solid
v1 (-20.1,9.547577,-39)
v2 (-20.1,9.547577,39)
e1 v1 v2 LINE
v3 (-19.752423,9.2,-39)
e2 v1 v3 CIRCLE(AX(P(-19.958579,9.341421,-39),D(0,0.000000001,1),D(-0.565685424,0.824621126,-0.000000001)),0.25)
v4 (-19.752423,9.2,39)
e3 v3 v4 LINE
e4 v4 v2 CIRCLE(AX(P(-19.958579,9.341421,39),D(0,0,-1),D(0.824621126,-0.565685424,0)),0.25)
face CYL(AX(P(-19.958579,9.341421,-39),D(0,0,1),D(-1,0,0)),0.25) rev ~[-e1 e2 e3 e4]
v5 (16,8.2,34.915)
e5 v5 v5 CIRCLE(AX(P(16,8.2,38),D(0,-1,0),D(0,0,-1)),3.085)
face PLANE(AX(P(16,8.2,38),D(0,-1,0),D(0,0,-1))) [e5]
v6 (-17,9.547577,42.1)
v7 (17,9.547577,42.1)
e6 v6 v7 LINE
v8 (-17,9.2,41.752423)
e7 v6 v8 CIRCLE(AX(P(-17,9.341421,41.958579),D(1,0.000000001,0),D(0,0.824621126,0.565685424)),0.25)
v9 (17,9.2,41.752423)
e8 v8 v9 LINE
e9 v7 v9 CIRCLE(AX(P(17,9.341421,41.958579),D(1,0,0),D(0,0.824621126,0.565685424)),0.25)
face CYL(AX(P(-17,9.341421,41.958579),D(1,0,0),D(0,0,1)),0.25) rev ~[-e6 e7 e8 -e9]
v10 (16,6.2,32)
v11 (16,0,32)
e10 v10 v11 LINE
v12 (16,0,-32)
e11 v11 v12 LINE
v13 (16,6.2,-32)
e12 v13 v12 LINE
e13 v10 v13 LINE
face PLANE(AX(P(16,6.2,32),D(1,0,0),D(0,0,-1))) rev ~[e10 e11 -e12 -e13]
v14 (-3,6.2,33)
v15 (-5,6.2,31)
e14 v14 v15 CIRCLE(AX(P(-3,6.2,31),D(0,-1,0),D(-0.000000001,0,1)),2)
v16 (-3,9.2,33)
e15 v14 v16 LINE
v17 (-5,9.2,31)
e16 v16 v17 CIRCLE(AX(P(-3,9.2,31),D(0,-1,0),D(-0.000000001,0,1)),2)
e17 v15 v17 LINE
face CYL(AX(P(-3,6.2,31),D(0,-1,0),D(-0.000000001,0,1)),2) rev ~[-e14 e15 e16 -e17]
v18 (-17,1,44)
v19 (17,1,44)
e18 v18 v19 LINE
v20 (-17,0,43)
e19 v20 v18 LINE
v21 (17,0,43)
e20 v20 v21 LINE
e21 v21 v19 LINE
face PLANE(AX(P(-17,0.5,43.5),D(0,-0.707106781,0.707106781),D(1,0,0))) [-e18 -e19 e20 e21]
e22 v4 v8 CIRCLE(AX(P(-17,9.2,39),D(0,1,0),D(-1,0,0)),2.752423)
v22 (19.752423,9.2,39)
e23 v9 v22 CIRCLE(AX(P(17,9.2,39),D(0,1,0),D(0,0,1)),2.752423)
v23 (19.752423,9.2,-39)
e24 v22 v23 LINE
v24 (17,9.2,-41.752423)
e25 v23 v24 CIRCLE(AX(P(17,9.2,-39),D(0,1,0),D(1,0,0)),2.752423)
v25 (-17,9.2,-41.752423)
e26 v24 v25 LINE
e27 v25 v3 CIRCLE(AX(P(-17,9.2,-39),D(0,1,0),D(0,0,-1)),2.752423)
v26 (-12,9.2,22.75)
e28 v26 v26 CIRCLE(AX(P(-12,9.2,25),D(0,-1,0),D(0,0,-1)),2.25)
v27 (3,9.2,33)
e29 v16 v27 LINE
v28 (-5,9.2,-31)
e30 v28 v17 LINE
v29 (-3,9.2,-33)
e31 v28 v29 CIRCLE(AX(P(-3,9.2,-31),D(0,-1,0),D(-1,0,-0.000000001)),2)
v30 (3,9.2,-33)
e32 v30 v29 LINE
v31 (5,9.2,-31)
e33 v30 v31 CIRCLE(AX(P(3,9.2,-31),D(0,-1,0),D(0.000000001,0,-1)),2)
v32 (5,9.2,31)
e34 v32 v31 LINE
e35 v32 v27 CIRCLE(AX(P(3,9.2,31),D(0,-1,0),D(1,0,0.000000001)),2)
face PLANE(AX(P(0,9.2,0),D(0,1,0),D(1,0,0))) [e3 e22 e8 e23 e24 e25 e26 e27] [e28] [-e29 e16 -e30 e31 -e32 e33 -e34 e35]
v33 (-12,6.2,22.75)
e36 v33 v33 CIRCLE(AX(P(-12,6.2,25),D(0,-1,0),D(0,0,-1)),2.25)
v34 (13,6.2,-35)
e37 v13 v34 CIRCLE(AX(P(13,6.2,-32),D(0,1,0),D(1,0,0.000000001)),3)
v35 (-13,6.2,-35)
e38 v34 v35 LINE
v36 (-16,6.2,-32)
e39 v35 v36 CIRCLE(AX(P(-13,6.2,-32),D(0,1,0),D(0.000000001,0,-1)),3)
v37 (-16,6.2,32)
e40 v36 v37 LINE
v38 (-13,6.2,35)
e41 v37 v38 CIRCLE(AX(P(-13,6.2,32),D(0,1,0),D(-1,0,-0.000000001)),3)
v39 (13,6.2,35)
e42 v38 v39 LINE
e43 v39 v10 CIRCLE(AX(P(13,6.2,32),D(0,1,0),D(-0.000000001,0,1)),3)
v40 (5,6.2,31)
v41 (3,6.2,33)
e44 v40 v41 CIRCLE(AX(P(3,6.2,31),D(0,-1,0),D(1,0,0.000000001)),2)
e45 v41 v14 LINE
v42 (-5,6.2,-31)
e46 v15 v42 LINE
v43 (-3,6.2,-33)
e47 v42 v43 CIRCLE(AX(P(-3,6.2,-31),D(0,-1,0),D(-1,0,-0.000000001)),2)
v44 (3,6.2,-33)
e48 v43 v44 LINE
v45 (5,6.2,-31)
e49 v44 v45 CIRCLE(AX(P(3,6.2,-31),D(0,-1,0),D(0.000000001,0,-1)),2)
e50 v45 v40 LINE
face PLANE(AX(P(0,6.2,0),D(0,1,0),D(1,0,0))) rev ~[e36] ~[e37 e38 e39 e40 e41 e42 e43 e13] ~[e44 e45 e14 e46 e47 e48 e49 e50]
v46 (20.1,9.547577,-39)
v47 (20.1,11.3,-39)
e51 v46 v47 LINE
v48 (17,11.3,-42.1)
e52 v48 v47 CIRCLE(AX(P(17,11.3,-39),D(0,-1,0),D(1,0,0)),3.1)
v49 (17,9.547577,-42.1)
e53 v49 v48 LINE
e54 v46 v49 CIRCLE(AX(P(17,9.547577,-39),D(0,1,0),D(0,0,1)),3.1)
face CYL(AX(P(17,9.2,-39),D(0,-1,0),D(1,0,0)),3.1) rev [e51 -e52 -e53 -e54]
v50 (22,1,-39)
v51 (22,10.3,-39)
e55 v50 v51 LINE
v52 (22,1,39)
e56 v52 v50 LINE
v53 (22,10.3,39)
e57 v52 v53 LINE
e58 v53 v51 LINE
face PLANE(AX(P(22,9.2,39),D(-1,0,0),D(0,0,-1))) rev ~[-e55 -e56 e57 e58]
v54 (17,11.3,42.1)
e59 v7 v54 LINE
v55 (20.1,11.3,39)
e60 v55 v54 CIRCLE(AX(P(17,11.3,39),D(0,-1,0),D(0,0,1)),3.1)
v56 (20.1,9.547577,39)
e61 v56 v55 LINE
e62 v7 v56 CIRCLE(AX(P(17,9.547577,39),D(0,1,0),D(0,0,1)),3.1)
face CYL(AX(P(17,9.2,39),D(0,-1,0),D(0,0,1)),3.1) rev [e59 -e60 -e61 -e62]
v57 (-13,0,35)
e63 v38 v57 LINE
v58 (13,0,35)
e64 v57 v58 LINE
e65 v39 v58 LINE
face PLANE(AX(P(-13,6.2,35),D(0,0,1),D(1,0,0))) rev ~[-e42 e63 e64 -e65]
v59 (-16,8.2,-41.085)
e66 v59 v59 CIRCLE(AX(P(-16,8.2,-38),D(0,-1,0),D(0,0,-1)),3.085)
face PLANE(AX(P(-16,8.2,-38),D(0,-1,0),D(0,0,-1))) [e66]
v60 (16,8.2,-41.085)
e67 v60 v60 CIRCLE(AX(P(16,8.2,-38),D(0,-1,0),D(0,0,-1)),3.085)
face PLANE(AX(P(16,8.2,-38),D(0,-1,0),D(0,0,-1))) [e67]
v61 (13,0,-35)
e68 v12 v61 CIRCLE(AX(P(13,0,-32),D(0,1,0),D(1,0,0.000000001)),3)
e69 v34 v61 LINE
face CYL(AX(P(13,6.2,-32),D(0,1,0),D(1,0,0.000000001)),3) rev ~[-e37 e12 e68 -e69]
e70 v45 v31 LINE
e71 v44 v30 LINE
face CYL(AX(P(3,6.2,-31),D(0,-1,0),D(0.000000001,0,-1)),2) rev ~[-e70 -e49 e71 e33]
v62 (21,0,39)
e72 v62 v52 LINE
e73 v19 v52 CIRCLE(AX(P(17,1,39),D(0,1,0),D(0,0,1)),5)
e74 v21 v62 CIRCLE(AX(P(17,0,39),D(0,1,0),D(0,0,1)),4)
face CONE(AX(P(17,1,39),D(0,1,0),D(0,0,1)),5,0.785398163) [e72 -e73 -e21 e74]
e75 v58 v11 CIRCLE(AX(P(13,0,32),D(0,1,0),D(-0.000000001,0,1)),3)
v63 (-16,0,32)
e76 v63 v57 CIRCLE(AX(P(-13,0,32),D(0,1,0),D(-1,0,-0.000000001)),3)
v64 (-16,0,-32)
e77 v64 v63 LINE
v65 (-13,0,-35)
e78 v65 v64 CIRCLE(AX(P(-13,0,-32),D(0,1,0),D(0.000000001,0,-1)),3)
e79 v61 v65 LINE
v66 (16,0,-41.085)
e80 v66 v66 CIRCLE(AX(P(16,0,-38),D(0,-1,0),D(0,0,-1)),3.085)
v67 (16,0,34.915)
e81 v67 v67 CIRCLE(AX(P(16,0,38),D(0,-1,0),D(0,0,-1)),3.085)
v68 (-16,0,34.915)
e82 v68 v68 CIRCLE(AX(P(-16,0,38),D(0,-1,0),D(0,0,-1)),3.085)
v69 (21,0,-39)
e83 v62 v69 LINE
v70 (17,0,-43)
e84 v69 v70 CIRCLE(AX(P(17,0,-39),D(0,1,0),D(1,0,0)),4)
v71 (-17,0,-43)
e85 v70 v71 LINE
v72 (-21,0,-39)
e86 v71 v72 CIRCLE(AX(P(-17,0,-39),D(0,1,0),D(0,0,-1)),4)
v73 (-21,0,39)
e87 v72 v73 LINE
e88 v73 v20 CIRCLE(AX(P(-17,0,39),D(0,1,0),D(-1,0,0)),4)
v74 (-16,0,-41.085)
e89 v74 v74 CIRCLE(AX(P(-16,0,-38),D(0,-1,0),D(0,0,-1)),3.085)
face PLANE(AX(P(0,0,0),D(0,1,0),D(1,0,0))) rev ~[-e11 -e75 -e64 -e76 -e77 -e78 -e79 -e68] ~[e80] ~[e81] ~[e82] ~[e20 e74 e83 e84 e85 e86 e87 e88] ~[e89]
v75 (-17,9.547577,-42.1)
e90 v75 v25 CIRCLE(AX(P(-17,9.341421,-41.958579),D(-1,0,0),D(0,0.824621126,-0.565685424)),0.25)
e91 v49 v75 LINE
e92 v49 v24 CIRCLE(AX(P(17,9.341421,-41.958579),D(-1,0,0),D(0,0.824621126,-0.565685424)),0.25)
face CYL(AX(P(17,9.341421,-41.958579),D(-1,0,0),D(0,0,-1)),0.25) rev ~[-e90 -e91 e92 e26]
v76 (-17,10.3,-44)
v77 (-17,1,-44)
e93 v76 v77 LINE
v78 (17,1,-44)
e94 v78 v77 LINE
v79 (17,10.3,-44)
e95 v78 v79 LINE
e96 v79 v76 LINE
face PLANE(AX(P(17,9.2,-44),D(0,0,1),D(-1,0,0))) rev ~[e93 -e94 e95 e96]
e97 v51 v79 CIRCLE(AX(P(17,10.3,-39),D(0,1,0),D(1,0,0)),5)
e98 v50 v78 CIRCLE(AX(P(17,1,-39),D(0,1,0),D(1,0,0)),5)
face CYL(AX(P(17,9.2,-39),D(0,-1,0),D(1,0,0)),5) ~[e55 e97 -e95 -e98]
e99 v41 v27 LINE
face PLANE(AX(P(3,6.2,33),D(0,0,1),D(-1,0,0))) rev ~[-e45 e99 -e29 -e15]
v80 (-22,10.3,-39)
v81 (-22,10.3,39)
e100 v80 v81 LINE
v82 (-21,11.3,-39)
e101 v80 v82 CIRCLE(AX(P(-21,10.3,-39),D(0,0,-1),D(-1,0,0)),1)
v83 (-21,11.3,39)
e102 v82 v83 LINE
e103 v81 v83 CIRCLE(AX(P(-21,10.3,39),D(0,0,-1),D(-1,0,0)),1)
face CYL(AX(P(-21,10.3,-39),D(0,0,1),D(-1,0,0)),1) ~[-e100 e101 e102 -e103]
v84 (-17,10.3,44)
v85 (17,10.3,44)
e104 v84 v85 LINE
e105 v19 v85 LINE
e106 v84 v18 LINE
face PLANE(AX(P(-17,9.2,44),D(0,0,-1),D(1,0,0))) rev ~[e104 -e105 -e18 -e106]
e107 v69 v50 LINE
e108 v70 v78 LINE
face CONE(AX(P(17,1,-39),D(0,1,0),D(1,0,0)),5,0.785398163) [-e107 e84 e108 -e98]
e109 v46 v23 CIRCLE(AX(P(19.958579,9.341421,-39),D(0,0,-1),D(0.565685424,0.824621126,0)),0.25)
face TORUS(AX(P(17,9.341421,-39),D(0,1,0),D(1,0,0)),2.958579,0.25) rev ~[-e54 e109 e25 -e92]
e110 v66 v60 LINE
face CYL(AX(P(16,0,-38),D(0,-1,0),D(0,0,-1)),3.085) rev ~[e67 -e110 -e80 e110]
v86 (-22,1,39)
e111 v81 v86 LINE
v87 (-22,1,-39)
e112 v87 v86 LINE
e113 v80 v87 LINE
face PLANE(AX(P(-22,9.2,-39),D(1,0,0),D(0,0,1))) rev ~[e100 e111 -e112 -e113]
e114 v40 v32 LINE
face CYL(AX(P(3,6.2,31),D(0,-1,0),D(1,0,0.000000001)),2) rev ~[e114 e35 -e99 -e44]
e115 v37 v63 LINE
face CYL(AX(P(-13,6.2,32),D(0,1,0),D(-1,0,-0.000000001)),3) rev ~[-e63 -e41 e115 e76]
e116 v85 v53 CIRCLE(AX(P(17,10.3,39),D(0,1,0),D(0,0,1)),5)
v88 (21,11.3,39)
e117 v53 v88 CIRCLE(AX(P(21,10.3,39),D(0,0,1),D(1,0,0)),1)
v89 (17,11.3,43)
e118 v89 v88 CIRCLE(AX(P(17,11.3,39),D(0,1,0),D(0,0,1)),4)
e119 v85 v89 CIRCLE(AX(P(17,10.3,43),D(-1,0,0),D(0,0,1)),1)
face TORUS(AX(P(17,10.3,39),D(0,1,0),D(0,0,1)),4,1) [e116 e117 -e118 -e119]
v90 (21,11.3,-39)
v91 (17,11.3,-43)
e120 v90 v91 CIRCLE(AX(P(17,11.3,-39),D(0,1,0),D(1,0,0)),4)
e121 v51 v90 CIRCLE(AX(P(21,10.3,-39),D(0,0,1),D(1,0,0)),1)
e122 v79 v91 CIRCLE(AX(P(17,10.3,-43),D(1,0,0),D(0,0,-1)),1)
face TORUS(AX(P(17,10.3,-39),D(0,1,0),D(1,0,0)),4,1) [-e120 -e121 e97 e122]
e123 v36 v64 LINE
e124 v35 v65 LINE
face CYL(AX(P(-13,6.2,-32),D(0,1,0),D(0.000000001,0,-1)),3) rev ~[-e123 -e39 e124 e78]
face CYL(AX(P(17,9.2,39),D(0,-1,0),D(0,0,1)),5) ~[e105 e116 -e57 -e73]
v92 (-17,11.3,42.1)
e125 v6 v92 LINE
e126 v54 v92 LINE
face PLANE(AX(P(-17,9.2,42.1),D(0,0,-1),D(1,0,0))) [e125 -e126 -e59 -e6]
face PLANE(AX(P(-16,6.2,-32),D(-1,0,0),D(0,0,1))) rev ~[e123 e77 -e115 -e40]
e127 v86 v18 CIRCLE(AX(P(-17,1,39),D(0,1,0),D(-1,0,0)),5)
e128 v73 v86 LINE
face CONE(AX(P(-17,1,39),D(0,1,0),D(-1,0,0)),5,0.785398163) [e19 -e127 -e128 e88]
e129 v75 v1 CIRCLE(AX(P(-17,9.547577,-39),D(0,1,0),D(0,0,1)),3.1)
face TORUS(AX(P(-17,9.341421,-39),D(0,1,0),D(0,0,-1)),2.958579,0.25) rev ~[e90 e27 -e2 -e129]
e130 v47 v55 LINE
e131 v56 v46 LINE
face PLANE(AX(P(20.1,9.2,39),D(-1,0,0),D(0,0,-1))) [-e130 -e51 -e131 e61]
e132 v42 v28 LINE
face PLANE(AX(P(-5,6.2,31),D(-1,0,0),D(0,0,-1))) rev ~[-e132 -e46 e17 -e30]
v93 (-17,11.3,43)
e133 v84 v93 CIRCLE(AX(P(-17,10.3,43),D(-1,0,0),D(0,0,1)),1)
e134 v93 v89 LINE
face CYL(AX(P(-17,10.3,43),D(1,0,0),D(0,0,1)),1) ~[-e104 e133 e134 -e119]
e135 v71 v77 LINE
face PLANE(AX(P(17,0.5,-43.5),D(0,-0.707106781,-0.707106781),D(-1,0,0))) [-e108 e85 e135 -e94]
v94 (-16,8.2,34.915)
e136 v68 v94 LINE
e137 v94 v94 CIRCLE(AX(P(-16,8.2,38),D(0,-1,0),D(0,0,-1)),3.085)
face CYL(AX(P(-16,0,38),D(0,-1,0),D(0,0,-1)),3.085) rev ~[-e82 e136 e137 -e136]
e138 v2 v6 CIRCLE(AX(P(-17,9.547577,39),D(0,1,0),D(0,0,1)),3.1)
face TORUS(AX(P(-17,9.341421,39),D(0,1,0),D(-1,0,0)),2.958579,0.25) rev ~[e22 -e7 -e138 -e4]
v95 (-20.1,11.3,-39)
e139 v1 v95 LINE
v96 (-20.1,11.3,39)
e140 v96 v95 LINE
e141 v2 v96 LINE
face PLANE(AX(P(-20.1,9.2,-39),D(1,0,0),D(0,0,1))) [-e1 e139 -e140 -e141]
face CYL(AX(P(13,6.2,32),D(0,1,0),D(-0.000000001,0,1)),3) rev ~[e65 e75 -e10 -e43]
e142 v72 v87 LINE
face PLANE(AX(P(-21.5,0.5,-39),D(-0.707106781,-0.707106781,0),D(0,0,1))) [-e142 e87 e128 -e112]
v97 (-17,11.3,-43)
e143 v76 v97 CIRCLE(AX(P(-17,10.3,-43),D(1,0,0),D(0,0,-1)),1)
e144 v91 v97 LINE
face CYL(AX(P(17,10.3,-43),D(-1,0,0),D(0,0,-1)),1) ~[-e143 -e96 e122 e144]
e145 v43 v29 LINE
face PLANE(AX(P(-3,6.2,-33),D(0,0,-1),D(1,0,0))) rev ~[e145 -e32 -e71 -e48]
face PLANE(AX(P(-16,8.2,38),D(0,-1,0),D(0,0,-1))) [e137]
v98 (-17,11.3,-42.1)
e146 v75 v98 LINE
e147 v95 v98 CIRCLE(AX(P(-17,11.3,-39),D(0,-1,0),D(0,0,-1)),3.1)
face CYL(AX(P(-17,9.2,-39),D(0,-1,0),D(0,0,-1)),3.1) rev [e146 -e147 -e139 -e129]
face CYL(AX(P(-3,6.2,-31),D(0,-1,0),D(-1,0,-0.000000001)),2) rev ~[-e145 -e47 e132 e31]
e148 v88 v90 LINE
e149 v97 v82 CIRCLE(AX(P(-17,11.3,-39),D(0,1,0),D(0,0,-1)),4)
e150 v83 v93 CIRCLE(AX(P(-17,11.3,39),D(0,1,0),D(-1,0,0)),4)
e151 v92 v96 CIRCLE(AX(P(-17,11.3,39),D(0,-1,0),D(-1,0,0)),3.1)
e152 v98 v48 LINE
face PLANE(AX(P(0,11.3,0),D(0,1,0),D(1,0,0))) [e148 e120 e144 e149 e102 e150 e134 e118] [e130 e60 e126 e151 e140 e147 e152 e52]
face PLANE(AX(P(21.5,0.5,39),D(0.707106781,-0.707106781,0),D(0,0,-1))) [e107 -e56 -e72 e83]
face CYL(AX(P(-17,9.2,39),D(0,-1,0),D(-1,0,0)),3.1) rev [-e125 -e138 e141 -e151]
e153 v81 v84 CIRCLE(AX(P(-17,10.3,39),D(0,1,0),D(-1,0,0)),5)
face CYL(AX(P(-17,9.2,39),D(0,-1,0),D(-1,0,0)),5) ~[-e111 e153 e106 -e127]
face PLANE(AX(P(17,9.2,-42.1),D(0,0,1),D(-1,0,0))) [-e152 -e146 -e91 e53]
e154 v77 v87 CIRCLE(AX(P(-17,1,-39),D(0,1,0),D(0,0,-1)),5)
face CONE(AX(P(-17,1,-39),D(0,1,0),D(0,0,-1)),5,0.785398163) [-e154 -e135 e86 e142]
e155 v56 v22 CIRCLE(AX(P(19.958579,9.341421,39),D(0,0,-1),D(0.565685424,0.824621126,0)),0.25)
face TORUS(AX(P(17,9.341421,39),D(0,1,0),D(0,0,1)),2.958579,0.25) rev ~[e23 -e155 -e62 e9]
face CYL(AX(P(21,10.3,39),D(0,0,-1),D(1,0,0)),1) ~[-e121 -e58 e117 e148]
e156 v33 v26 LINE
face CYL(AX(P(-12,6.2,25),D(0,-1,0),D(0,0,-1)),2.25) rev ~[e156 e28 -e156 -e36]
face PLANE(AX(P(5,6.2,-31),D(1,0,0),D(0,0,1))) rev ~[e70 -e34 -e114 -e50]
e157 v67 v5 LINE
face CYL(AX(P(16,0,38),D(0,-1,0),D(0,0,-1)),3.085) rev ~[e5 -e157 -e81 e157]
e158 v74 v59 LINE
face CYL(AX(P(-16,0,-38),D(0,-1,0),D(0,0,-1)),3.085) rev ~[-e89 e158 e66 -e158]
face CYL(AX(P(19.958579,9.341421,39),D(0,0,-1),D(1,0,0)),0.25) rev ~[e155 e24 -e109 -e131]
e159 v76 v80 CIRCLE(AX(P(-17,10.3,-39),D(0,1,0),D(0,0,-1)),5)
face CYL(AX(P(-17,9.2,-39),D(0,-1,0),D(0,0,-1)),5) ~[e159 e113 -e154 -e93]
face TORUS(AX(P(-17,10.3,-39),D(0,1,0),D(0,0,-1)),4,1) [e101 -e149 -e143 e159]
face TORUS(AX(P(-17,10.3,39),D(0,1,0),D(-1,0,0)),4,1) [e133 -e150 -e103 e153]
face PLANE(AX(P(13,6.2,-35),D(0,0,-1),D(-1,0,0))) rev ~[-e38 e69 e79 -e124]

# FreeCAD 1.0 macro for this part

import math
import FreeCAD as App
import Part
import Sketcher
from FreeCAD import Vector


def edges_at(feature, points):
    """Names of the edges that pass closest to the given points."""
    edges = feature.Shape.Edges
    near = lambda p: min(range(len(edges)), key=lambda i: edges[i].distToShape(Part.Vertex(*p))[0])
    return sorted({f"Edge{near(p) + 1}" for p in points})

doc = App.newDocument("Part")
body = doc.addObject("PartDesign::Body", "Body")

# Sketch on XZ plane
sketch1 = body.newObject("Sketcher::SketchObject", "Sketch")
sketch1.AttachmentSupport = (doc.getObject("XZ_Plane"), [""])
sketch1.MapMode = "FlatFace"
sketch1.addGeometry(Part.LineSegment(Vector(-17, 44, 0), Vector(17, 44, 0)), False)
sketch1.addGeometry(Part.ArcOfCircle(Part.Circle(Vector(17, 39, 0), Vector(0, 0, 1), 5), math.radians(0), math.radians(90)), False)
sketch1.addGeometry(Part.LineSegment(Vector(22, 39, 0), Vector(22, -39, 0)), False)
sketch1.addGeometry(Part.ArcOfCircle(Part.Circle(Vector(17, -39, 0), Vector(0, 0, 1), 5), math.radians(-90), math.radians(0)), False)
sketch1.addGeometry(Part.LineSegment(Vector(17, -44, 0), Vector(-17, -44, 0)), False)
sketch1.addGeometry(Part.ArcOfCircle(Part.Circle(Vector(-17, -39, 0), Vector(0, 0, 1), 5), math.radians(180), math.radians(270)), False)
sketch1.addGeometry(Part.LineSegment(Vector(-22, -39, 0), Vector(-22, 39, 0)), False)
sketch1.addGeometry(Part.ArcOfCircle(Part.Circle(Vector(-17, 39, 0), Vector(0, 0, 1), 5), math.radians(90), math.radians(180)), False)
sketch1.addConstraint(Sketcher.Constraint("Tangent", 0, 2, 1, 2))
sketch1.addConstraint(Sketcher.Constraint("Tangent", 1, 1, 2, 1))
sketch1.addConstraint(Sketcher.Constraint("Tangent", 2, 2, 3, 2))
sketch1.addConstraint(Sketcher.Constraint("Tangent", 3, 1, 4, 1))
sketch1.addConstraint(Sketcher.Constraint("Tangent", 4, 2, 5, 2))
sketch1.addConstraint(Sketcher.Constraint("Tangent", 5, 1, 6, 1))
sketch1.addConstraint(Sketcher.Constraint("Tangent", 6, 2, 7, 2))
sketch1.addConstraint(Sketcher.Constraint("Tangent", 7, 1, 0, 1))
sketch1.addConstraint(Sketcher.Constraint("Horizontal", 0))
sketch1.addConstraint(Sketcher.Constraint("Vertical", 2))
sketch1.addConstraint(Sketcher.Constraint("Horizontal", 4))
sketch1.addConstraint(Sketcher.Constraint("Vertical", 6))
sketch1.addConstraint(Sketcher.Constraint("Equal", 1, 3))
sketch1.addConstraint(Sketcher.Constraint("Equal", 3, 5))
sketch1.addConstraint(Sketcher.Constraint("Equal", 5, 7))
sketch1.addConstraint(Sketcher.Constraint("Symmetric", 1, 3, 5, 3, -1, 1))
sketch1.addConstraint(Sketcher.Constraint("Radius", 1, 5.0))
sketch1.addConstraint(Sketcher.Constraint("DistanceX", 0, 1, 0, 2, 34.0))
sketch1.addConstraint(Sketcher.Constraint("DistanceY", 2, 2, 2, 1, 78.0))
pad1 = body.newObject("PartDesign::Pad", "Pad")
pad1.Profile = sketch1
pad1.Length = 9.2
pad1.Reversed = True

# Sketch on XZ plane
sketch2 = body.newObject("Sketcher::SketchObject", "Sketch001")
sketch2.AttachmentSupport = (doc.getObject("XZ_Plane"), [""])
sketch2.MapMode = "FlatFace"
sketch2.AttachmentOffset = App.Placement(Vector(0, 0, -6.2), App.Rotation())
sketch2.addGeometry(Part.LineSegment(Vector(16, -32, 0), Vector(16, 32, 0)), False)
sketch2.addGeometry(Part.ArcOfCircle(Part.Circle(Vector(13, 32, 0), Vector(0, 0, 1), 3), math.radians(0), math.radians(90)), False)
sketch2.addGeometry(Part.LineSegment(Vector(13, 35, 0), Vector(-13, 35, 0)), False)
sketch2.addGeometry(Part.ArcOfCircle(Part.Circle(Vector(-13, 32, 0), Vector(0, 0, 1), 3), math.radians(90), math.radians(180)), False)
sketch2.addGeometry(Part.LineSegment(Vector(-16, 32, 0), Vector(-16, -32, 0)), False)
sketch2.addGeometry(Part.ArcOfCircle(Part.Circle(Vector(-13, -32, 0), Vector(0, 0, 1), 3), math.radians(180), math.radians(270)), False)
sketch2.addGeometry(Part.LineSegment(Vector(-13, -35, 0), Vector(13, -35, 0)), False)
sketch2.addGeometry(Part.ArcOfCircle(Part.Circle(Vector(13, -32, 0), Vector(0, 0, 1), 3), math.radians(-90), math.radians(0)), False)
sketch2.addConstraint(Sketcher.Constraint("Tangent", 0, 2, 1, 1))
sketch2.addConstraint(Sketcher.Constraint("Tangent", 1, 2, 2, 1))
sketch2.addConstraint(Sketcher.Constraint("Tangent", 2, 2, 3, 1))
sketch2.addConstraint(Sketcher.Constraint("Tangent", 3, 2, 4, 1))
sketch2.addConstraint(Sketcher.Constraint("Tangent", 4, 2, 5, 1))
sketch2.addConstraint(Sketcher.Constraint("Tangent", 5, 2, 6, 1))
sketch2.addConstraint(Sketcher.Constraint("Tangent", 6, 2, 7, 1))
sketch2.addConstraint(Sketcher.Constraint("Tangent", 7, 2, 0, 1))
sketch2.addConstraint(Sketcher.Constraint("Vertical", 0))
sketch2.addConstraint(Sketcher.Constraint("Horizontal", 2))
sketch2.addConstraint(Sketcher.Constraint("Vertical", 4))
sketch2.addConstraint(Sketcher.Constraint("Horizontal", 6))
sketch2.addConstraint(Sketcher.Constraint("Equal", 1, 3))
sketch2.addConstraint(Sketcher.Constraint("Equal", 3, 5))
sketch2.addConstraint(Sketcher.Constraint("Equal", 5, 7))
sketch2.addConstraint(Sketcher.Constraint("Symmetric", 1, 3, 5, 3, -1, 1))
sketch2.addConstraint(Sketcher.Constraint("Radius", 1, 3.0))
sketch2.addConstraint(Sketcher.Constraint("DistanceX", 2, 2, 2, 1, 26.0))
sketch2.addConstraint(Sketcher.Constraint("DistanceY", 0, 1, 0, 2, 64.0))
pocket1 = body.newObject("PartDesign::Pocket", "Pocket")
pocket1.Profile = sketch2
pocket1.Type = "ThroughAll"
pocket1.Reversed = True

# Sketch on XZ plane
sketch3 = body.newObject("Sketcher::SketchObject", "Sketch002")
sketch3.AttachmentSupport = (doc.getObject("XZ_Plane"), [""])
sketch3.MapMode = "FlatFace"
sketch3.AttachmentOffset = App.Placement(Vector(0, 0, -6.2), App.Rotation())
sketch3.addGeometry(Part.Circle(Vector(-12, 25, 0), Vector(0, 0, 1), 2.2), False)
sketch3.addGeometry(Part.LineSegment(Vector(-3, -33, 0), Vector(3, -33, 0)), False)
sketch3.addGeometry(Part.ArcOfCircle(Part.Circle(Vector(3, -31, 0), Vector(0, 0, 1), 2), math.radians(-90), math.radians(0)), False)
sketch3.addGeometry(Part.LineSegment(Vector(5, -31, 0), Vector(5, 31, 0)), False)
sketch3.addGeometry(Part.ArcOfCircle(Part.Circle(Vector(3, 31, 0), Vector(0, 0, 1), 2), math.radians(0), math.radians(90)), False)
sketch3.addGeometry(Part.LineSegment(Vector(3, 33, 0), Vector(-3, 33, 0)), False)
sketch3.addGeometry(Part.ArcOfCircle(Part.Circle(Vector(-3, 31, 0), Vector(0, 0, 1), 2), math.radians(90), math.radians(180)), False)
sketch3.addGeometry(Part.LineSegment(Vector(-5, 31, 0), Vector(-5, -31, 0)), False)
sketch3.addGeometry(Part.ArcOfCircle(Part.Circle(Vector(-3, -31, 0), Vector(0, 0, 1), 2), math.radians(-180), math.radians(-90)), False)
sketch3.addConstraint(Sketcher.Constraint("Tangent", 1, 2, 2, 1))
sketch3.addConstraint(Sketcher.Constraint("Tangent", 2, 2, 3, 1))
sketch3.addConstraint(Sketcher.Constraint("Tangent", 3, 2, 4, 1))
sketch3.addConstraint(Sketcher.Constraint("Tangent", 4, 2, 5, 1))
sketch3.addConstraint(Sketcher.Constraint("Tangent", 5, 2, 6, 1))
sketch3.addConstraint(Sketcher.Constraint("Tangent", 6, 2, 7, 1))
sketch3.addConstraint(Sketcher.Constraint("Tangent", 7, 2, 8, 1))
sketch3.addConstraint(Sketcher.Constraint("Tangent", 8, 2, 1, 1))
sketch3.addConstraint(Sketcher.Constraint("Horizontal", 1))
sketch3.addConstraint(Sketcher.Constraint("Vertical", 3))
sketch3.addConstraint(Sketcher.Constraint("Horizontal", 5))
sketch3.addConstraint(Sketcher.Constraint("Vertical", 7))
sketch3.addConstraint(Sketcher.Constraint("Equal", 2, 4))
sketch3.addConstraint(Sketcher.Constraint("Equal", 4, 6))
sketch3.addConstraint(Sketcher.Constraint("Equal", 6, 8))
sketch3.addConstraint(Sketcher.Constraint("Symmetric", 2, 3, 6, 3, -1, 1))
sketch3.addConstraint(Sketcher.Constraint("Radius", 2, 2.0))
sketch3.addConstraint(Sketcher.Constraint("Diameter", 0, 4.5))
sketch3.addConstraint(Sketcher.Constraint("DistanceX", 1, 1, 1, 2, 6.0))
sketch3.addConstraint(Sketcher.Constraint("DistanceY", 3, 1, 3, 2, 62.0))
sketch3.addConstraint(Sketcher.Constraint("DistanceX", 0, 3, -1, 1, 12.0))
sketch3.addConstraint(Sketcher.Constraint("DistanceY", -1, 1, 0, 3, 25.0))
pocket2 = body.newObject("PartDesign::Pocket", "Pocket001")
pocket2.Profile = sketch3
pocket2.Length = 10

# Sketch on XZ plane
sketch4 = body.newObject("Sketcher::SketchObject", "Sketch003")
sketch4.AttachmentSupport = (doc.getObject("XZ_Plane"), [""])
sketch4.MapMode = "FlatFace"
sketch4.AttachmentOffset = App.Placement(Vector(0, 0, -9.2), App.Rotation())
sketch4.addGeometry(Part.LineSegment(Vector(-17, 44, 0), Vector(17, 44, 0)), False)
sketch4.addGeometry(Part.ArcOfCircle(Part.Circle(Vector(17, 39, 0), Vector(0, 0, 1), 5), math.radians(0), math.radians(90)), False)
sketch4.addGeometry(Part.LineSegment(Vector(22, 39, 0), Vector(22, -39, 0)), False)
sketch4.addGeometry(Part.ArcOfCircle(Part.Circle(Vector(17, -39, 0), Vector(0, 0, 1), 5), math.radians(-90), math.radians(0)), False)
sketch4.addGeometry(Part.LineSegment(Vector(17, -44, 0), Vector(-17, -44, 0)), False)
sketch4.addGeometry(Part.ArcOfCircle(Part.Circle(Vector(-17, -39, 0), Vector(0, 0, 1), 5), math.radians(180), math.radians(270)), False)
sketch4.addGeometry(Part.LineSegment(Vector(-22, -39, 0), Vector(-22, 39, 0)), False)
sketch4.addGeometry(Part.ArcOfCircle(Part.Circle(Vector(-17, 39, 0), Vector(0, 0, 1), 5), math.radians(90), math.radians(180)), False)
sketch4.addGeometry(Part.LineSegment(Vector(17, 42, 0), Vector(-17, 42, 0)), False)
sketch4.addGeometry(Part.ArcOfCircle(Part.Circle(Vector(-17, 39, 0), Vector(0, 0, 1), 3), math.radians(90), math.radians(180)), False)
sketch4.addGeometry(Part.LineSegment(Vector(-20, 39, 0), Vector(-20, -39, 0)), False)
sketch4.addGeometry(Part.ArcOfCircle(Part.Circle(Vector(-17, -39, 0), Vector(0, 0, 1), 3), math.radians(180), math.radians(270)), False)
sketch4.addGeometry(Part.LineSegment(Vector(-17, -42, 0), Vector(17, -42, 0)), False)
sketch4.addGeometry(Part.ArcOfCircle(Part.Circle(Vector(17, -39, 0), Vector(0, 0, 1), 3), math.radians(-90), math.radians(0)), False)
sketch4.addGeometry(Part.LineSegment(Vector(20, -39, 0), Vector(20, 39, 0)), False)
sketch4.addGeometry(Part.ArcOfCircle(Part.Circle(Vector(17, 39, 0), Vector(0, 0, 1), 3), math.radians(0), math.radians(90)), False)
sketch4.addConstraint(Sketcher.Constraint("Tangent", 0, 2, 1, 2))
sketch4.addConstraint(Sketcher.Constraint("Tangent", 1, 1, 2, 1))
sketch4.addConstraint(Sketcher.Constraint("Tangent", 2, 2, 3, 2))
sketch4.addConstraint(Sketcher.Constraint("Tangent", 3, 1, 4, 1))
sketch4.addConstraint(Sketcher.Constraint("Tangent", 4, 2, 5, 2))
sketch4.addConstraint(Sketcher.Constraint("Tangent", 5, 1, 6, 1))
sketch4.addConstraint(Sketcher.Constraint("Tangent", 6, 2, 7, 2))
sketch4.addConstraint(Sketcher.Constraint("Tangent", 7, 1, 0, 1))
sketch4.addConstraint(Sketcher.Constraint("Tangent", 8, 2, 9, 1))
sketch4.addConstraint(Sketcher.Constraint("Tangent", 9, 2, 10, 1))
sketch4.addConstraint(Sketcher.Constraint("Tangent", 10, 2, 11, 1))
sketch4.addConstraint(Sketcher.Constraint("Tangent", 11, 2, 12, 1))
sketch4.addConstraint(Sketcher.Constraint("Tangent", 12, 2, 13, 1))
sketch4.addConstraint(Sketcher.Constraint("Tangent", 13, 2, 14, 1))
sketch4.addConstraint(Sketcher.Constraint("Tangent", 14, 2, 15, 1))
sketch4.addConstraint(Sketcher.Constraint("Tangent", 15, 2, 8, 1))
sketch4.addConstraint(Sketcher.Constraint("Horizontal", 0))
sketch4.addConstraint(Sketcher.Constraint("Vertical", 2))
sketch4.addConstraint(Sketcher.Constraint("Horizontal", 4))
sketch4.addConstraint(Sketcher.Constraint("Vertical", 6))
sketch4.addConstraint(Sketcher.Constraint("Horizontal", 8))
sketch4.addConstraint(Sketcher.Constraint("Vertical", 10))
sketch4.addConstraint(Sketcher.Constraint("Horizontal", 12))
sketch4.addConstraint(Sketcher.Constraint("Vertical", 14))
sketch4.addConstraint(Sketcher.Constraint("Coincident", 9, 3, 7, 3))
sketch4.addConstraint(Sketcher.Constraint("Coincident", 11, 3, 5, 3))
sketch4.addConstraint(Sketcher.Constraint("Coincident", 13, 3, 3, 3))
sketch4.addConstraint(Sketcher.Constraint("Equal", 1, 3))
sketch4.addConstraint(Sketcher.Constraint("Equal", 3, 5))
sketch4.addConstraint(Sketcher.Constraint("Equal", 5, 7))
sketch4.addConstraint(Sketcher.Constraint("Equal", 13, 15))
sketch4.addConstraint(Sketcher.Constraint("Symmetric", 1, 3, 5, 3, -1, 1))
sketch4.addConstraint(Sketcher.Constraint("Radius", 1, 5.0))
sketch4.addConstraint(Sketcher.Constraint("Radius", 9, 3.0))
sketch4.addConstraint(Sketcher.Constraint("DistanceX", 0, 1, 0, 2, 34.0))
sketch4.addConstraint(Sketcher.Constraint("DistanceY", 2, 2, 2, 1, 78.0))
pad2 = body.newObject("PartDesign::Pad", "Pad001")
pad2.Profile = sketch4
pad2.Length = 2.1
pad2.Reversed = True
doc.recompute()

fillet = body.newObject("PartDesign::Fillet", "Fillet")
fillet.Base = (pad2, edges_at(pad2, [
    (22, 11.3, 0),
    (20.536, 11.3, -42.536),
    (0, 11.3, -44),
    (-20.536, 11.3, -42.536),
    (-22, 11.3, 0),
    (-20.536, 11.3, 42.536),
    (0, 11.3, 44),
    (20.536, 11.3, 42.536),
]))
fillet.Radius = 1

# Sketch on XZ plane
sketch5 = body.newObject("Sketcher::SketchObject", "Sketch004")
sketch5.AttachmentSupport = (doc.getObject("XZ_Plane"), [""])
sketch5.MapMode = "FlatFace"
sketch5.AttachmentOffset = App.Placement(Vector(0, 0, -9.2), App.Rotation())
sketch5.addGeometry(Part.LineSegment(Vector(-20.1, -39, 0), Vector(-20.1, 39, 0)), False)
sketch5.addGeometry(Part.ArcOfCircle(Part.Circle(Vector(-17, 39, 0), Vector(0, 0, 1), 3.1), math.radians(90), math.radians(180)), False)
sketch5.addGeometry(Part.LineSegment(Vector(-17, 42.1, 0), Vector(17, 42.1, 0)), False)
sketch5.addGeometry(Part.ArcOfCircle(Part.Circle(Vector(17, 39, 0), Vector(0, 0, 1), 3.1), math.radians(0), math.radians(90)), False)
sketch5.addGeometry(Part.LineSegment(Vector(20.1, 39, 0), Vector(20.1, -39, 0)), False)
sketch5.addGeometry(Part.ArcOfCircle(Part.Circle(Vector(17, -39, 0), Vector(0, 0, 1), 3.1), math.radians(-90), math.radians(0)), False)
sketch5.addGeometry(Part.LineSegment(Vector(17, -42.1, 0), Vector(-17, -42.1, 0)), False)
sketch5.addGeometry(Part.ArcOfCircle(Part.Circle(Vector(-17, -39, 0), Vector(0, 0, 1), 3.1), math.radians(180), math.radians(270)), False)
sketch5.addGeometry(Part.LineSegment(Vector(-20, 39, 0), Vector(-20, -39, 0)), False)
sketch5.addGeometry(Part.ArcOfCircle(Part.Circle(Vector(-17, -39, 0), Vector(0, 0, 1), 3), math.radians(180), math.radians(270)), False)
sketch5.addGeometry(Part.LineSegment(Vector(-17, -42, 0), Vector(17, -42, 0)), False)
sketch5.addGeometry(Part.ArcOfCircle(Part.Circle(Vector(17, -39, 0), Vector(0, 0, 1), 3), math.radians(-90), math.radians(0)), False)
sketch5.addGeometry(Part.LineSegment(Vector(20, -39, 0), Vector(20, 39, 0)), False)
sketch5.addGeometry(Part.ArcOfCircle(Part.Circle(Vector(17, 39, 0), Vector(0, 0, 1), 3), math.radians(0), math.radians(90)), False)
sketch5.addGeometry(Part.LineSegment(Vector(17, 42, 0), Vector(-17, 42, 0)), False)
sketch5.addGeometry(Part.ArcOfCircle(Part.Circle(Vector(-17, 39, 0), Vector(0, 0, 1), 3), math.radians(90), math.radians(180)), False)
sketch5.addConstraint(Sketcher.Constraint("Tangent", 0, 2, 1, 2))
sketch5.addConstraint(Sketcher.Constraint("Tangent", 1, 1, 2, 1))
sketch5.addConstraint(Sketcher.Constraint("Tangent", 2, 2, 3, 2))
sketch5.addConstraint(Sketcher.Constraint("Tangent", 3, 1, 4, 1))
sketch5.addConstraint(Sketcher.Constraint("Tangent", 4, 2, 5, 2))
sketch5.addConstraint(Sketcher.Constraint("Tangent", 5, 1, 6, 1))
sketch5.addConstraint(Sketcher.Constraint("Tangent", 6, 2, 7, 2))
sketch5.addConstraint(Sketcher.Constraint("Tangent", 7, 1, 0, 1))
sketch5.addConstraint(Sketcher.Constraint("Tangent", 8, 2, 9, 1))
sketch5.addConstraint(Sketcher.Constraint("Tangent", 9, 2, 10, 1))
sketch5.addConstraint(Sketcher.Constraint("Tangent", 10, 2, 11, 1))
sketch5.addConstraint(Sketcher.Constraint("Tangent", 11, 2, 12, 1))
sketch5.addConstraint(Sketcher.Constraint("Tangent", 12, 2, 13, 1))
sketch5.addConstraint(Sketcher.Constraint("Tangent", 13, 2, 14, 1))
sketch5.addConstraint(Sketcher.Constraint("Tangent", 14, 2, 15, 1))
sketch5.addConstraint(Sketcher.Constraint("Tangent", 15, 2, 8, 1))
sketch5.addConstraint(Sketcher.Constraint("Vertical", 0))
sketch5.addConstraint(Sketcher.Constraint("Horizontal", 2))
sketch5.addConstraint(Sketcher.Constraint("Vertical", 4))
sketch5.addConstraint(Sketcher.Constraint("Horizontal", 6))
sketch5.addConstraint(Sketcher.Constraint("Vertical", 8))
sketch5.addConstraint(Sketcher.Constraint("Horizontal", 10))
sketch5.addConstraint(Sketcher.Constraint("Vertical", 12))
sketch5.addConstraint(Sketcher.Constraint("Horizontal", 14))
sketch5.addConstraint(Sketcher.Constraint("Coincident", 9, 3, 7, 3))
sketch5.addConstraint(Sketcher.Constraint("Coincident", 11, 3, 5, 3))
sketch5.addConstraint(Sketcher.Constraint("Coincident", 13, 3, 3, 3))
sketch5.addConstraint(Sketcher.Constraint("Equal", 1, 3))
sketch5.addConstraint(Sketcher.Constraint("Equal", 3, 5))
sketch5.addConstraint(Sketcher.Constraint("Equal", 5, 7))
sketch5.addConstraint(Sketcher.Constraint("Equal", 13, 15))
sketch5.addConstraint(Sketcher.Constraint("Symmetric", 1, 3, 5, 3, -1, 1))
sketch5.addConstraint(Sketcher.Constraint("Radius", 9, 3.0))
sketch5.addConstraint(Sketcher.Constraint("Radius", 1, 3.1))
sketch5.addConstraint(Sketcher.Constraint("DistanceX", 2, 1, 2, 2, 34.0))
sketch5.addConstraint(Sketcher.Constraint("DistanceY", 0, 1, 0, 2, 78.0))
pocket3 = body.newObject("PartDesign::Pocket", "Pocket002")
pocket3.Profile = sketch5
pocket3.Type = "ThroughAll"

# Sketch on YZ plane
sketch6 = body.newObject("Sketcher::SketchObject", "Sketch005")
sketch6.AttachmentSupport = (doc.getObject("YZ_Plane"), [""])
sketch6.MapMode = "FlatFace"
sketch6.addGeometry(Part.Circle(Vector(9.34, -41.96, 0), Vector(0, 0, 1), 0.25), False)
sketch6.addConstraint(Sketcher.Constraint("Diameter", 0, 0.5))
sketch6.addConstraint(Sketcher.Constraint("DistanceX", -1, 1, 0, 3, 9.341421))
sketch6.addConstraint(Sketcher.Constraint("DistanceY", 0, 3, -1, 1, 41.958579))

# Sketch on XZ plane
sketch7 = body.newObject("Sketcher::SketchObject", "Sketch006")
sketch7.AttachmentSupport = (doc.getObject("XZ_Plane"), [""])
sketch7.MapMode = "FlatFace"
sketch7.AttachmentOffset = App.Placement(Vector(0, 0, -9.2), App.Rotation())
sketch7.addGeometry(Part.LineSegment(Vector(-20.1, -39, 0), Vector(-20.1, 39, 0)), False)
sketch7.addGeometry(Part.ArcOfCircle(Part.Circle(Vector(-17, 39, 0), Vector(0, 0, 1), 3.1), math.radians(90), math.radians(180)), False)
sketch7.addGeometry(Part.LineSegment(Vector(-17, 42.1, 0), Vector(17, 42.1, 0)), False)
sketch7.addGeometry(Part.ArcOfCircle(Part.Circle(Vector(17, 39, 0), Vector(0, 0, 1), 3.1), math.radians(0), math.radians(90)), False)
sketch7.addGeometry(Part.LineSegment(Vector(20.1, 39, 0), Vector(20.1, -39, 0)), False)
sketch7.addGeometry(Part.ArcOfCircle(Part.Circle(Vector(17, -39, 0), Vector(0, 0, 1), 3.1), math.radians(-90), math.radians(0)), False)
sketch7.addGeometry(Part.LineSegment(Vector(17, -42.1, 0), Vector(-17, -42.1, 0)), False)
sketch7.addGeometry(Part.ArcOfCircle(Part.Circle(Vector(-17, -39, 0), Vector(0, 0, 1), 3.1), math.radians(180), math.radians(270)), False)
sketch7.addConstraint(Sketcher.Constraint("Tangent", 0, 2, 1, 2))
sketch7.addConstraint(Sketcher.Constraint("Tangent", 1, 1, 2, 1))
sketch7.addConstraint(Sketcher.Constraint("Tangent", 2, 2, 3, 2))
sketch7.addConstraint(Sketcher.Constraint("Tangent", 3, 1, 4, 1))
sketch7.addConstraint(Sketcher.Constraint("Tangent", 4, 2, 5, 2))
sketch7.addConstraint(Sketcher.Constraint("Tangent", 5, 1, 6, 1))
sketch7.addConstraint(Sketcher.Constraint("Tangent", 6, 2, 7, 2))
sketch7.addConstraint(Sketcher.Constraint("Tangent", 7, 1, 0, 1))
sketch7.addConstraint(Sketcher.Constraint("Vertical", 0))
sketch7.addConstraint(Sketcher.Constraint("Horizontal", 2))
sketch7.addConstraint(Sketcher.Constraint("Vertical", 4))
sketch7.addConstraint(Sketcher.Constraint("Horizontal", 6))
sketch7.addConstraint(Sketcher.Constraint("Equal", 1, 3))
sketch7.addConstraint(Sketcher.Constraint("Equal", 3, 5))
sketch7.addConstraint(Sketcher.Constraint("Equal", 5, 7))
sketch7.addConstraint(Sketcher.Constraint("Symmetric", 1, 3, 5, 3, -1, 1))
sketch7.addConstraint(Sketcher.Constraint("Radius", 1, 3.1))
sketch7.addConstraint(Sketcher.Constraint("DistanceX", 2, 1, 2, 2, 34.0))
sketch7.addConstraint(Sketcher.Constraint("DistanceY", 0, 1, 0, 2, 78.0))
doc.recompute()

subtractivepipe = body.newObject("PartDesign::SubtractivePipe", "SubtractivePipe")
subtractivepipe.Profile = sketch6
subtractivepipe.Spine = (sketch7, ["Edge1", "Edge2", "Edge3", "Edge4", "Edge5", "Edge6", "Edge7", "Edge8"])

# Sketch on XZ plane
sketch8 = body.newObject("Sketcher::SketchObject", "Sketch007")
sketch8.AttachmentSupport = (doc.getObject("XZ_Plane"), [""])
sketch8.MapMode = "FlatFace"
sketch8.addGeometry(Part.Circle(Vector(-16, 38, 0), Vector(0, 0, 1), 3.1), False)
sketch8.addGeometry(Part.Circle(Vector(16, 38, 0), Vector(0, 0, 1), 3.1), False)
sketch8.addGeometry(Part.Circle(Vector(16, -38, 0), Vector(0, 0, 1), 3.1), False)
sketch8.addGeometry(Part.Circle(Vector(-16, -38, 0), Vector(0, 0, 1), 3.1), False)
sketch8.addConstraint(Sketcher.Constraint("Equal", 0, 1))
sketch8.addConstraint(Sketcher.Constraint("Equal", 1, 2))
sketch8.addConstraint(Sketcher.Constraint("Equal", 2, 3))
sketch8.addConstraint(Sketcher.Constraint("Symmetric", 0, 3, 2, 3, -1, 1))
sketch8.addConstraint(Sketcher.Constraint("Symmetric", 1, 3, 3, 3, -1, 1))
sketch8.addConstraint(Sketcher.Constraint("Symmetric", 0, 3, 1, 3, -2))
sketch8.addConstraint(Sketcher.Constraint("Diameter", 0, 6.17))
sketch8.addConstraint(Sketcher.Constraint("DistanceX", 0, 3, -1, 1, 16.0))
sketch8.addConstraint(Sketcher.Constraint("DistanceY", -1, 1, 0, 3, 38.0))
pocket4 = body.newObject("PartDesign::Pocket", "Pocket003")
pocket4.Profile = sketch8
pocket4.Length = 8.2
doc.recompute()

chamfer = body.newObject("PartDesign::Chamfer", "Chamfer")
chamfer.Base = (pocket4, edges_at(pocket4, [
    (22, 0, 0),
    (20.536, 0, 42.536),
    (0, 0, 44),
    (-20.536, 0, 42.536),
    (-22, 0, 0),
    (-20.536, 0, -42.536),
    (0, 0, -44),
    (20.536, 0, -42.536),
]))
chamfer.Size = 1

doc.recompute()
